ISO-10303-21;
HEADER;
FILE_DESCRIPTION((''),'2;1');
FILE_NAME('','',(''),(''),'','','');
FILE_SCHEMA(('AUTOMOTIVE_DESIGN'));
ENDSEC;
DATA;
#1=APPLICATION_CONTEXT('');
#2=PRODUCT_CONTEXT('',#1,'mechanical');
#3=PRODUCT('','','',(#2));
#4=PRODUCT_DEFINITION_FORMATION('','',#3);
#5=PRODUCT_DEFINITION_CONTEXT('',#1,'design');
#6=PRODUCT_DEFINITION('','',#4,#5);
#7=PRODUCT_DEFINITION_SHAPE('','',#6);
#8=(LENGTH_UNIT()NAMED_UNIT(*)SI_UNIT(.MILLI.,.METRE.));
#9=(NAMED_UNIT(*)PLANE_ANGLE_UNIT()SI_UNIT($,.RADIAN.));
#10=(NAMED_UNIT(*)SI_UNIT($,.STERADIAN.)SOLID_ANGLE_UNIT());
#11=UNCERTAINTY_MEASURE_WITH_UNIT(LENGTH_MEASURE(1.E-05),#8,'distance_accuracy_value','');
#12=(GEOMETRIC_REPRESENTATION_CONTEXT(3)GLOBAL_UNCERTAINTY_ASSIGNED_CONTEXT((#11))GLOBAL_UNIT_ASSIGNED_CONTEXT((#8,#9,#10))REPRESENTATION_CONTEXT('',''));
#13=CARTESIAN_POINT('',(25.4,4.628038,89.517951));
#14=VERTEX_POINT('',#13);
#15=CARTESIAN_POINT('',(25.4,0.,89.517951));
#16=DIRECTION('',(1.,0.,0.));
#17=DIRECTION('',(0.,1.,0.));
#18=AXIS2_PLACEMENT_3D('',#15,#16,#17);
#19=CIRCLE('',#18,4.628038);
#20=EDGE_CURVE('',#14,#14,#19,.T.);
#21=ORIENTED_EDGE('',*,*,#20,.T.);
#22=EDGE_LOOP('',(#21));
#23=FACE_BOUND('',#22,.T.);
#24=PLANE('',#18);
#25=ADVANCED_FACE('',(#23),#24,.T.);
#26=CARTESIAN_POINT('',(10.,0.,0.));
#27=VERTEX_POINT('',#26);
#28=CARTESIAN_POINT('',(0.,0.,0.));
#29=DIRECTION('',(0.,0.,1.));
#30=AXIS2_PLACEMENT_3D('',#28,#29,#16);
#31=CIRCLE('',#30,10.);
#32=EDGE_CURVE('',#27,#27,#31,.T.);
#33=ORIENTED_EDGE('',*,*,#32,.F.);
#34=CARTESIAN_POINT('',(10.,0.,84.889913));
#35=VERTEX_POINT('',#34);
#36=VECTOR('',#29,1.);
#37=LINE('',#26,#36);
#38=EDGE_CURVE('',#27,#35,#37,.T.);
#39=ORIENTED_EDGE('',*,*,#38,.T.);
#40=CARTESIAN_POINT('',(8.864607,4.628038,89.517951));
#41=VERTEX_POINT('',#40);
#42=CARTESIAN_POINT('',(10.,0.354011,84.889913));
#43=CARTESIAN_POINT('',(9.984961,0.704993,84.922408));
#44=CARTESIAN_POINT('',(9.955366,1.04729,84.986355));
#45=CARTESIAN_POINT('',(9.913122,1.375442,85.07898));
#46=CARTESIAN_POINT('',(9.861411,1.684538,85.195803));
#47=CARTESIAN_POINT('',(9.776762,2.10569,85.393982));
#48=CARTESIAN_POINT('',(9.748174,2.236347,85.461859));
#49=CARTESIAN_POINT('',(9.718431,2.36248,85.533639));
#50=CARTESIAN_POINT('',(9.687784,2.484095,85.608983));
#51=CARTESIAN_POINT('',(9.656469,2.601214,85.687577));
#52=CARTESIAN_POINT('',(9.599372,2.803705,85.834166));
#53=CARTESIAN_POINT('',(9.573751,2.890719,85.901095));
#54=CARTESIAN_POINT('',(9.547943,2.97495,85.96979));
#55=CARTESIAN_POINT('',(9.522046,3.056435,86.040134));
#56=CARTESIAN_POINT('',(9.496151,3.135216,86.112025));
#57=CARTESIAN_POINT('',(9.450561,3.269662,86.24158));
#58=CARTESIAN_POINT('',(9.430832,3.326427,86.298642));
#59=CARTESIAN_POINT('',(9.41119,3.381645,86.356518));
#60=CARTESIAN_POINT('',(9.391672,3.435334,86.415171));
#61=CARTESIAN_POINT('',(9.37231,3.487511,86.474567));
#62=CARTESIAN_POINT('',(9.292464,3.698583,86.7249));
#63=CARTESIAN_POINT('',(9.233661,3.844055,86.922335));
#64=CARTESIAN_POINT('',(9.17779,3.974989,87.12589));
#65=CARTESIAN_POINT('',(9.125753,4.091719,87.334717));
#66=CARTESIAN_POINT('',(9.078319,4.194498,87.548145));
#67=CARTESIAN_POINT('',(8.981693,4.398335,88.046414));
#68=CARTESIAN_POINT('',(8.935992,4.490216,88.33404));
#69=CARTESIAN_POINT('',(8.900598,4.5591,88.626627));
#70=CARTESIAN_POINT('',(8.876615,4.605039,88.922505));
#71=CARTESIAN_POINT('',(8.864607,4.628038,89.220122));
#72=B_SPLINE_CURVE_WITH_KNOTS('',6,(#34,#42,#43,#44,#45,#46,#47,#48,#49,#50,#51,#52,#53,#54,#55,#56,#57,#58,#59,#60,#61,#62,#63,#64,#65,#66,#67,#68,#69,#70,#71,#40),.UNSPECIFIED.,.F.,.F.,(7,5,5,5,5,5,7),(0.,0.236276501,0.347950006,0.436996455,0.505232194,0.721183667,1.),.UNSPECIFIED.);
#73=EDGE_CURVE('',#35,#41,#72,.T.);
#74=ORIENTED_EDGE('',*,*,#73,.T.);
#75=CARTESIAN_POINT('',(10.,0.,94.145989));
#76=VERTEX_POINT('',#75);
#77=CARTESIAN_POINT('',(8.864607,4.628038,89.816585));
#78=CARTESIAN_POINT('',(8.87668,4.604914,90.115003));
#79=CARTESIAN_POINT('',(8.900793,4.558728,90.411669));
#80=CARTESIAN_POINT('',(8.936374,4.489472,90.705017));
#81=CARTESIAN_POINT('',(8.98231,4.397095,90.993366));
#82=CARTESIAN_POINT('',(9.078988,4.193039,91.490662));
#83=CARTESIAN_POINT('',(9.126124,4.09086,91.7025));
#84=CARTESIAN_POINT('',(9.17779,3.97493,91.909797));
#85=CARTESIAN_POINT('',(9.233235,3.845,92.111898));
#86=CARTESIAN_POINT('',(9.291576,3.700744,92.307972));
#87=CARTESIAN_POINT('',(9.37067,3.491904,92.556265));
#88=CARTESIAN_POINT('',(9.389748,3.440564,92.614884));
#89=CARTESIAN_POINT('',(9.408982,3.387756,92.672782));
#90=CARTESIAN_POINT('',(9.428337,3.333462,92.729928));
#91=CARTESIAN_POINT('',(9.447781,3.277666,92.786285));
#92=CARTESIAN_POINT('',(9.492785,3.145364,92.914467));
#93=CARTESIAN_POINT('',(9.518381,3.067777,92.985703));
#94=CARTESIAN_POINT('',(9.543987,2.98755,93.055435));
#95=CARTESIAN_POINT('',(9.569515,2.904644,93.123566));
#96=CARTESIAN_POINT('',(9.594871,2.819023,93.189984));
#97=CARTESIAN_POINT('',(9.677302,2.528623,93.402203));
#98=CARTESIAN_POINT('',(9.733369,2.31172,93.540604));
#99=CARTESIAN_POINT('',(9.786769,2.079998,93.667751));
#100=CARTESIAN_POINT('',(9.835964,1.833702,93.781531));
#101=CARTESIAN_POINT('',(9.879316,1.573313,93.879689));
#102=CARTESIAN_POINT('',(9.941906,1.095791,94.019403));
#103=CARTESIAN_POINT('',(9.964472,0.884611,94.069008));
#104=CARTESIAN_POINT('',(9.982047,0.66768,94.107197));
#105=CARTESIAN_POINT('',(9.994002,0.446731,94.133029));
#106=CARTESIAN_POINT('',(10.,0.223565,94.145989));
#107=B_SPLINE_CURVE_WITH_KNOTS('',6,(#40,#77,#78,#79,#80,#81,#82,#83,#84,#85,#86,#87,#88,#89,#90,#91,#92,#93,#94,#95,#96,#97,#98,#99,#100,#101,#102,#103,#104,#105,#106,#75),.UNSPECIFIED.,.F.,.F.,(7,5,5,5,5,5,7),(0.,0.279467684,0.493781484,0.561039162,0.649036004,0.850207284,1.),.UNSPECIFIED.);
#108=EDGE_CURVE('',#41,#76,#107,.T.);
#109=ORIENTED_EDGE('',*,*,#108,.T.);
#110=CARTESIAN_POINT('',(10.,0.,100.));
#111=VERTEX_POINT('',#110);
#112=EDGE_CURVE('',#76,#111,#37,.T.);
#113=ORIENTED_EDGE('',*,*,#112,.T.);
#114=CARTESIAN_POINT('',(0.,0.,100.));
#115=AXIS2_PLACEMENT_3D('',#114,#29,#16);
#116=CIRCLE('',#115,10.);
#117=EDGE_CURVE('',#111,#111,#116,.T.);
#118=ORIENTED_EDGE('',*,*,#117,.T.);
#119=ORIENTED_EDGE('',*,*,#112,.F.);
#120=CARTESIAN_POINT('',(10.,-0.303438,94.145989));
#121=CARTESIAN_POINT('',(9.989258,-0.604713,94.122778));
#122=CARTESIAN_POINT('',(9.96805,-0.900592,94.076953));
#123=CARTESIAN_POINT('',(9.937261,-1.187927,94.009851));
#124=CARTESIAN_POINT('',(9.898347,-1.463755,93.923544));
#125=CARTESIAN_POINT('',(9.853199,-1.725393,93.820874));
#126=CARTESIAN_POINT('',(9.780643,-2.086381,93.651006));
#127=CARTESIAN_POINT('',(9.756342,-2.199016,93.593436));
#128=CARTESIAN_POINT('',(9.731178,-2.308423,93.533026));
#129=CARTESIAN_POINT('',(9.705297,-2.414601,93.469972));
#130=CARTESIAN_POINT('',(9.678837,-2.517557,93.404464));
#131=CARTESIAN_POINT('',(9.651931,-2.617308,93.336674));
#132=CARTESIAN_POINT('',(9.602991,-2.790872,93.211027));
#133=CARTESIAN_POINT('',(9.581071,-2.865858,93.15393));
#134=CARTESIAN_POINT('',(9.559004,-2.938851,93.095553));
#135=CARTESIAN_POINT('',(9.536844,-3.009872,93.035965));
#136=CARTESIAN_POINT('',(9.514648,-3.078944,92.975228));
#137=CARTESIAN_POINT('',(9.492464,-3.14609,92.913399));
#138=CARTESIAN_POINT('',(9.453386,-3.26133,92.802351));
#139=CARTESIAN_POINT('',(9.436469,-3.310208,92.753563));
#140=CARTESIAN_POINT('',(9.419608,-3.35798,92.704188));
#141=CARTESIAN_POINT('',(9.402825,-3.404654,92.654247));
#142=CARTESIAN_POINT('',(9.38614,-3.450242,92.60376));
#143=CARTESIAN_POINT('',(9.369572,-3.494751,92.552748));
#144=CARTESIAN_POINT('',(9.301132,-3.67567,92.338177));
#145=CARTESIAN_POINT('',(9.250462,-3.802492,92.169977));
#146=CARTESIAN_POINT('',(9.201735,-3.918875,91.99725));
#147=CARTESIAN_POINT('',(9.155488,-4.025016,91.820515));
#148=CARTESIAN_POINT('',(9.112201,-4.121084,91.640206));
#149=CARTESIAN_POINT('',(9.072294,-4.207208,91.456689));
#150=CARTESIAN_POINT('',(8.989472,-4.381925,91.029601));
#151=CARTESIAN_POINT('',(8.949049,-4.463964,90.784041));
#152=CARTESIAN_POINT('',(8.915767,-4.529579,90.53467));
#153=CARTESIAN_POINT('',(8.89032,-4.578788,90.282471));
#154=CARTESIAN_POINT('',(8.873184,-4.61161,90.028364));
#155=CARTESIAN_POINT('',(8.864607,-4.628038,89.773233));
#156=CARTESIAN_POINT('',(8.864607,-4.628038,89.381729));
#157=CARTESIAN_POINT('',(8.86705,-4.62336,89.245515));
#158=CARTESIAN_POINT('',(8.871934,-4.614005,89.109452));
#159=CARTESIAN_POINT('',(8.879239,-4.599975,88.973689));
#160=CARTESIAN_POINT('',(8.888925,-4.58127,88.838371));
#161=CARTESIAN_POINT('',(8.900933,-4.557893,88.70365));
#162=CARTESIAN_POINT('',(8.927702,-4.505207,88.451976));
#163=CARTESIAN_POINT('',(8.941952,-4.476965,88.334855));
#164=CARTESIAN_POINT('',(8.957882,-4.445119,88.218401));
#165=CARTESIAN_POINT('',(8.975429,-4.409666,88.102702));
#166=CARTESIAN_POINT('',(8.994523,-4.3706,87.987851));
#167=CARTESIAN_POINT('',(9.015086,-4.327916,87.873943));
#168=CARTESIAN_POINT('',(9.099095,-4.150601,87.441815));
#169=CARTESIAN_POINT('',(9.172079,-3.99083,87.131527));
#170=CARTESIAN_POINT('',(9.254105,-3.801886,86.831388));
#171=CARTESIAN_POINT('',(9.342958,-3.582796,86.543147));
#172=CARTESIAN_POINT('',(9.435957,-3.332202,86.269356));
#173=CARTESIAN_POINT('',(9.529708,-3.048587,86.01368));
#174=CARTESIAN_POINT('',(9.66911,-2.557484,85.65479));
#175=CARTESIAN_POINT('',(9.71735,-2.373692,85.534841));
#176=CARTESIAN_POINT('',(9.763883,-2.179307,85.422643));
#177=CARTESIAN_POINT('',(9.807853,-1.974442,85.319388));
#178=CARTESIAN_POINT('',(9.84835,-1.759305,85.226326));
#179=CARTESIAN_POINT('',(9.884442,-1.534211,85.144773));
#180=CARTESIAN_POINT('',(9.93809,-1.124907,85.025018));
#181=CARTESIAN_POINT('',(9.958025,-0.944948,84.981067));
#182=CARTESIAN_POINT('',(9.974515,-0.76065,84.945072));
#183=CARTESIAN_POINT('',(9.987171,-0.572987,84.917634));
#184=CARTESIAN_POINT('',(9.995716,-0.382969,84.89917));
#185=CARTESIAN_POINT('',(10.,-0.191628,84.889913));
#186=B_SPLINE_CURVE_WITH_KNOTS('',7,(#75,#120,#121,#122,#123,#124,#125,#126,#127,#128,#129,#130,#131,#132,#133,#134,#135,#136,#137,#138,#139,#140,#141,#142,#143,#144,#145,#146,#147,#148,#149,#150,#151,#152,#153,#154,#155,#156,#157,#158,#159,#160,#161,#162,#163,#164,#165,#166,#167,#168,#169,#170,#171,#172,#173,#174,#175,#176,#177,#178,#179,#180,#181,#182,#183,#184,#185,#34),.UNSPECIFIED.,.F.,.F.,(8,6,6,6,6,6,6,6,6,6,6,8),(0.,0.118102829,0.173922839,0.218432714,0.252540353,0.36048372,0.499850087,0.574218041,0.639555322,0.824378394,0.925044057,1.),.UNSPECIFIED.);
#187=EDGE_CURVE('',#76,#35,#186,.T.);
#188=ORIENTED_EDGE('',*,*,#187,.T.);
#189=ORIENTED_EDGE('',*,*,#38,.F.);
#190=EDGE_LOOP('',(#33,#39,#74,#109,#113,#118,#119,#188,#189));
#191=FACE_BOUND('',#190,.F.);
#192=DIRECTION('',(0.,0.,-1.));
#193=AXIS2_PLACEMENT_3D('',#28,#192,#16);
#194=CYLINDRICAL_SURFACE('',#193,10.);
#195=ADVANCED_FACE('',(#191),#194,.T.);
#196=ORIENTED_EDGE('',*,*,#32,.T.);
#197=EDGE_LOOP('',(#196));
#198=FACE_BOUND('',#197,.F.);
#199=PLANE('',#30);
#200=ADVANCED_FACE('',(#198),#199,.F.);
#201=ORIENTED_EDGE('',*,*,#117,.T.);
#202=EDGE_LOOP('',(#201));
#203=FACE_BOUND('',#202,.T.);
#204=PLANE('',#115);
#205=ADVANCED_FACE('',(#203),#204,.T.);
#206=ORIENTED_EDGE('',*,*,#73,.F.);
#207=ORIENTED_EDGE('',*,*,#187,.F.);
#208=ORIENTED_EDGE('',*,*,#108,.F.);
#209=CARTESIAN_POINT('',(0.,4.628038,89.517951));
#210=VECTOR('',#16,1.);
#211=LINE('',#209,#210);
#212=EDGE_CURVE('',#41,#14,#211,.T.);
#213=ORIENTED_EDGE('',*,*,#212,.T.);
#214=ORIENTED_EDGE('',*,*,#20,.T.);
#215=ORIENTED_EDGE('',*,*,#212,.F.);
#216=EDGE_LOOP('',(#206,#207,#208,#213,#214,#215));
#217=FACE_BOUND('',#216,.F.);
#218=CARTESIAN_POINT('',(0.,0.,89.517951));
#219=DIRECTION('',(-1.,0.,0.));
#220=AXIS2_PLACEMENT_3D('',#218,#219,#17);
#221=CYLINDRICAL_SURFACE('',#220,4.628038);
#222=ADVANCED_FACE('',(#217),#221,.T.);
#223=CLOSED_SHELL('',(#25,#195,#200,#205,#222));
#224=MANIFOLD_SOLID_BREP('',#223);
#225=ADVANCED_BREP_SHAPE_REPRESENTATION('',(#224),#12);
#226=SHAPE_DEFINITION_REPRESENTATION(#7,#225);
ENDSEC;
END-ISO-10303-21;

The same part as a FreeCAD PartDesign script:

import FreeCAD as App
import Part
import Sketcher
from FreeCAD import Vector
Q = App.Units.Quantity

doc = App.newDocument("Part")
body = doc.addObject("PartDesign::Body", "Body")

# Sketch on XY plane
sketch1 = body.newObject("Sketcher::SketchObject", "Sketch")
sketch1.AttachmentSupport = (doc.getObject("XY_Plane"), [""])
sketch1.MapMode = "FlatFace"
sketch1.addGeometry(Part.Circle(Vector(0, 0, 0), Vector(0, 0, 1), 10), False)
sketch1.addConstraint([
    Sketcher.Constraint("Coincident", 0, 3, -1, 1),
    Sketcher.Constraint("Diameter", 0, Q("20 mm")),
])
pad1 = body.newObject("PartDesign::Pad", "Pad")
pad1.Profile = sketch1
pad1.Length = 100

# Sketch on YZ plane
sketch2 = body.newObject("Sketcher::SketchObject", "Sketch001")
sketch2.AttachmentSupport = (doc.getObject("YZ_Plane"), [""])
sketch2.MapMode = "FlatFace"
sketch2.addGeometry(Part.Circle(Vector(0, 89.5, 0), Vector(0, 0, 1), 4.6), False)
sketch2.addConstraint([
    Sketcher.Constraint("PointOnObject", 0, 3, -2),
    Sketcher.Constraint("Diameter", 0, Q("9.256076 mm")),
    Sketcher.Constraint("DistanceY", -1, 1, 0, 3, Q("89.517951 mm")),
])
pad2 = body.newObject("PartDesign::Pad", "Pad001")
pad2.Profile = sketch2
pad2.Length = 25.4

doc.recompute()
